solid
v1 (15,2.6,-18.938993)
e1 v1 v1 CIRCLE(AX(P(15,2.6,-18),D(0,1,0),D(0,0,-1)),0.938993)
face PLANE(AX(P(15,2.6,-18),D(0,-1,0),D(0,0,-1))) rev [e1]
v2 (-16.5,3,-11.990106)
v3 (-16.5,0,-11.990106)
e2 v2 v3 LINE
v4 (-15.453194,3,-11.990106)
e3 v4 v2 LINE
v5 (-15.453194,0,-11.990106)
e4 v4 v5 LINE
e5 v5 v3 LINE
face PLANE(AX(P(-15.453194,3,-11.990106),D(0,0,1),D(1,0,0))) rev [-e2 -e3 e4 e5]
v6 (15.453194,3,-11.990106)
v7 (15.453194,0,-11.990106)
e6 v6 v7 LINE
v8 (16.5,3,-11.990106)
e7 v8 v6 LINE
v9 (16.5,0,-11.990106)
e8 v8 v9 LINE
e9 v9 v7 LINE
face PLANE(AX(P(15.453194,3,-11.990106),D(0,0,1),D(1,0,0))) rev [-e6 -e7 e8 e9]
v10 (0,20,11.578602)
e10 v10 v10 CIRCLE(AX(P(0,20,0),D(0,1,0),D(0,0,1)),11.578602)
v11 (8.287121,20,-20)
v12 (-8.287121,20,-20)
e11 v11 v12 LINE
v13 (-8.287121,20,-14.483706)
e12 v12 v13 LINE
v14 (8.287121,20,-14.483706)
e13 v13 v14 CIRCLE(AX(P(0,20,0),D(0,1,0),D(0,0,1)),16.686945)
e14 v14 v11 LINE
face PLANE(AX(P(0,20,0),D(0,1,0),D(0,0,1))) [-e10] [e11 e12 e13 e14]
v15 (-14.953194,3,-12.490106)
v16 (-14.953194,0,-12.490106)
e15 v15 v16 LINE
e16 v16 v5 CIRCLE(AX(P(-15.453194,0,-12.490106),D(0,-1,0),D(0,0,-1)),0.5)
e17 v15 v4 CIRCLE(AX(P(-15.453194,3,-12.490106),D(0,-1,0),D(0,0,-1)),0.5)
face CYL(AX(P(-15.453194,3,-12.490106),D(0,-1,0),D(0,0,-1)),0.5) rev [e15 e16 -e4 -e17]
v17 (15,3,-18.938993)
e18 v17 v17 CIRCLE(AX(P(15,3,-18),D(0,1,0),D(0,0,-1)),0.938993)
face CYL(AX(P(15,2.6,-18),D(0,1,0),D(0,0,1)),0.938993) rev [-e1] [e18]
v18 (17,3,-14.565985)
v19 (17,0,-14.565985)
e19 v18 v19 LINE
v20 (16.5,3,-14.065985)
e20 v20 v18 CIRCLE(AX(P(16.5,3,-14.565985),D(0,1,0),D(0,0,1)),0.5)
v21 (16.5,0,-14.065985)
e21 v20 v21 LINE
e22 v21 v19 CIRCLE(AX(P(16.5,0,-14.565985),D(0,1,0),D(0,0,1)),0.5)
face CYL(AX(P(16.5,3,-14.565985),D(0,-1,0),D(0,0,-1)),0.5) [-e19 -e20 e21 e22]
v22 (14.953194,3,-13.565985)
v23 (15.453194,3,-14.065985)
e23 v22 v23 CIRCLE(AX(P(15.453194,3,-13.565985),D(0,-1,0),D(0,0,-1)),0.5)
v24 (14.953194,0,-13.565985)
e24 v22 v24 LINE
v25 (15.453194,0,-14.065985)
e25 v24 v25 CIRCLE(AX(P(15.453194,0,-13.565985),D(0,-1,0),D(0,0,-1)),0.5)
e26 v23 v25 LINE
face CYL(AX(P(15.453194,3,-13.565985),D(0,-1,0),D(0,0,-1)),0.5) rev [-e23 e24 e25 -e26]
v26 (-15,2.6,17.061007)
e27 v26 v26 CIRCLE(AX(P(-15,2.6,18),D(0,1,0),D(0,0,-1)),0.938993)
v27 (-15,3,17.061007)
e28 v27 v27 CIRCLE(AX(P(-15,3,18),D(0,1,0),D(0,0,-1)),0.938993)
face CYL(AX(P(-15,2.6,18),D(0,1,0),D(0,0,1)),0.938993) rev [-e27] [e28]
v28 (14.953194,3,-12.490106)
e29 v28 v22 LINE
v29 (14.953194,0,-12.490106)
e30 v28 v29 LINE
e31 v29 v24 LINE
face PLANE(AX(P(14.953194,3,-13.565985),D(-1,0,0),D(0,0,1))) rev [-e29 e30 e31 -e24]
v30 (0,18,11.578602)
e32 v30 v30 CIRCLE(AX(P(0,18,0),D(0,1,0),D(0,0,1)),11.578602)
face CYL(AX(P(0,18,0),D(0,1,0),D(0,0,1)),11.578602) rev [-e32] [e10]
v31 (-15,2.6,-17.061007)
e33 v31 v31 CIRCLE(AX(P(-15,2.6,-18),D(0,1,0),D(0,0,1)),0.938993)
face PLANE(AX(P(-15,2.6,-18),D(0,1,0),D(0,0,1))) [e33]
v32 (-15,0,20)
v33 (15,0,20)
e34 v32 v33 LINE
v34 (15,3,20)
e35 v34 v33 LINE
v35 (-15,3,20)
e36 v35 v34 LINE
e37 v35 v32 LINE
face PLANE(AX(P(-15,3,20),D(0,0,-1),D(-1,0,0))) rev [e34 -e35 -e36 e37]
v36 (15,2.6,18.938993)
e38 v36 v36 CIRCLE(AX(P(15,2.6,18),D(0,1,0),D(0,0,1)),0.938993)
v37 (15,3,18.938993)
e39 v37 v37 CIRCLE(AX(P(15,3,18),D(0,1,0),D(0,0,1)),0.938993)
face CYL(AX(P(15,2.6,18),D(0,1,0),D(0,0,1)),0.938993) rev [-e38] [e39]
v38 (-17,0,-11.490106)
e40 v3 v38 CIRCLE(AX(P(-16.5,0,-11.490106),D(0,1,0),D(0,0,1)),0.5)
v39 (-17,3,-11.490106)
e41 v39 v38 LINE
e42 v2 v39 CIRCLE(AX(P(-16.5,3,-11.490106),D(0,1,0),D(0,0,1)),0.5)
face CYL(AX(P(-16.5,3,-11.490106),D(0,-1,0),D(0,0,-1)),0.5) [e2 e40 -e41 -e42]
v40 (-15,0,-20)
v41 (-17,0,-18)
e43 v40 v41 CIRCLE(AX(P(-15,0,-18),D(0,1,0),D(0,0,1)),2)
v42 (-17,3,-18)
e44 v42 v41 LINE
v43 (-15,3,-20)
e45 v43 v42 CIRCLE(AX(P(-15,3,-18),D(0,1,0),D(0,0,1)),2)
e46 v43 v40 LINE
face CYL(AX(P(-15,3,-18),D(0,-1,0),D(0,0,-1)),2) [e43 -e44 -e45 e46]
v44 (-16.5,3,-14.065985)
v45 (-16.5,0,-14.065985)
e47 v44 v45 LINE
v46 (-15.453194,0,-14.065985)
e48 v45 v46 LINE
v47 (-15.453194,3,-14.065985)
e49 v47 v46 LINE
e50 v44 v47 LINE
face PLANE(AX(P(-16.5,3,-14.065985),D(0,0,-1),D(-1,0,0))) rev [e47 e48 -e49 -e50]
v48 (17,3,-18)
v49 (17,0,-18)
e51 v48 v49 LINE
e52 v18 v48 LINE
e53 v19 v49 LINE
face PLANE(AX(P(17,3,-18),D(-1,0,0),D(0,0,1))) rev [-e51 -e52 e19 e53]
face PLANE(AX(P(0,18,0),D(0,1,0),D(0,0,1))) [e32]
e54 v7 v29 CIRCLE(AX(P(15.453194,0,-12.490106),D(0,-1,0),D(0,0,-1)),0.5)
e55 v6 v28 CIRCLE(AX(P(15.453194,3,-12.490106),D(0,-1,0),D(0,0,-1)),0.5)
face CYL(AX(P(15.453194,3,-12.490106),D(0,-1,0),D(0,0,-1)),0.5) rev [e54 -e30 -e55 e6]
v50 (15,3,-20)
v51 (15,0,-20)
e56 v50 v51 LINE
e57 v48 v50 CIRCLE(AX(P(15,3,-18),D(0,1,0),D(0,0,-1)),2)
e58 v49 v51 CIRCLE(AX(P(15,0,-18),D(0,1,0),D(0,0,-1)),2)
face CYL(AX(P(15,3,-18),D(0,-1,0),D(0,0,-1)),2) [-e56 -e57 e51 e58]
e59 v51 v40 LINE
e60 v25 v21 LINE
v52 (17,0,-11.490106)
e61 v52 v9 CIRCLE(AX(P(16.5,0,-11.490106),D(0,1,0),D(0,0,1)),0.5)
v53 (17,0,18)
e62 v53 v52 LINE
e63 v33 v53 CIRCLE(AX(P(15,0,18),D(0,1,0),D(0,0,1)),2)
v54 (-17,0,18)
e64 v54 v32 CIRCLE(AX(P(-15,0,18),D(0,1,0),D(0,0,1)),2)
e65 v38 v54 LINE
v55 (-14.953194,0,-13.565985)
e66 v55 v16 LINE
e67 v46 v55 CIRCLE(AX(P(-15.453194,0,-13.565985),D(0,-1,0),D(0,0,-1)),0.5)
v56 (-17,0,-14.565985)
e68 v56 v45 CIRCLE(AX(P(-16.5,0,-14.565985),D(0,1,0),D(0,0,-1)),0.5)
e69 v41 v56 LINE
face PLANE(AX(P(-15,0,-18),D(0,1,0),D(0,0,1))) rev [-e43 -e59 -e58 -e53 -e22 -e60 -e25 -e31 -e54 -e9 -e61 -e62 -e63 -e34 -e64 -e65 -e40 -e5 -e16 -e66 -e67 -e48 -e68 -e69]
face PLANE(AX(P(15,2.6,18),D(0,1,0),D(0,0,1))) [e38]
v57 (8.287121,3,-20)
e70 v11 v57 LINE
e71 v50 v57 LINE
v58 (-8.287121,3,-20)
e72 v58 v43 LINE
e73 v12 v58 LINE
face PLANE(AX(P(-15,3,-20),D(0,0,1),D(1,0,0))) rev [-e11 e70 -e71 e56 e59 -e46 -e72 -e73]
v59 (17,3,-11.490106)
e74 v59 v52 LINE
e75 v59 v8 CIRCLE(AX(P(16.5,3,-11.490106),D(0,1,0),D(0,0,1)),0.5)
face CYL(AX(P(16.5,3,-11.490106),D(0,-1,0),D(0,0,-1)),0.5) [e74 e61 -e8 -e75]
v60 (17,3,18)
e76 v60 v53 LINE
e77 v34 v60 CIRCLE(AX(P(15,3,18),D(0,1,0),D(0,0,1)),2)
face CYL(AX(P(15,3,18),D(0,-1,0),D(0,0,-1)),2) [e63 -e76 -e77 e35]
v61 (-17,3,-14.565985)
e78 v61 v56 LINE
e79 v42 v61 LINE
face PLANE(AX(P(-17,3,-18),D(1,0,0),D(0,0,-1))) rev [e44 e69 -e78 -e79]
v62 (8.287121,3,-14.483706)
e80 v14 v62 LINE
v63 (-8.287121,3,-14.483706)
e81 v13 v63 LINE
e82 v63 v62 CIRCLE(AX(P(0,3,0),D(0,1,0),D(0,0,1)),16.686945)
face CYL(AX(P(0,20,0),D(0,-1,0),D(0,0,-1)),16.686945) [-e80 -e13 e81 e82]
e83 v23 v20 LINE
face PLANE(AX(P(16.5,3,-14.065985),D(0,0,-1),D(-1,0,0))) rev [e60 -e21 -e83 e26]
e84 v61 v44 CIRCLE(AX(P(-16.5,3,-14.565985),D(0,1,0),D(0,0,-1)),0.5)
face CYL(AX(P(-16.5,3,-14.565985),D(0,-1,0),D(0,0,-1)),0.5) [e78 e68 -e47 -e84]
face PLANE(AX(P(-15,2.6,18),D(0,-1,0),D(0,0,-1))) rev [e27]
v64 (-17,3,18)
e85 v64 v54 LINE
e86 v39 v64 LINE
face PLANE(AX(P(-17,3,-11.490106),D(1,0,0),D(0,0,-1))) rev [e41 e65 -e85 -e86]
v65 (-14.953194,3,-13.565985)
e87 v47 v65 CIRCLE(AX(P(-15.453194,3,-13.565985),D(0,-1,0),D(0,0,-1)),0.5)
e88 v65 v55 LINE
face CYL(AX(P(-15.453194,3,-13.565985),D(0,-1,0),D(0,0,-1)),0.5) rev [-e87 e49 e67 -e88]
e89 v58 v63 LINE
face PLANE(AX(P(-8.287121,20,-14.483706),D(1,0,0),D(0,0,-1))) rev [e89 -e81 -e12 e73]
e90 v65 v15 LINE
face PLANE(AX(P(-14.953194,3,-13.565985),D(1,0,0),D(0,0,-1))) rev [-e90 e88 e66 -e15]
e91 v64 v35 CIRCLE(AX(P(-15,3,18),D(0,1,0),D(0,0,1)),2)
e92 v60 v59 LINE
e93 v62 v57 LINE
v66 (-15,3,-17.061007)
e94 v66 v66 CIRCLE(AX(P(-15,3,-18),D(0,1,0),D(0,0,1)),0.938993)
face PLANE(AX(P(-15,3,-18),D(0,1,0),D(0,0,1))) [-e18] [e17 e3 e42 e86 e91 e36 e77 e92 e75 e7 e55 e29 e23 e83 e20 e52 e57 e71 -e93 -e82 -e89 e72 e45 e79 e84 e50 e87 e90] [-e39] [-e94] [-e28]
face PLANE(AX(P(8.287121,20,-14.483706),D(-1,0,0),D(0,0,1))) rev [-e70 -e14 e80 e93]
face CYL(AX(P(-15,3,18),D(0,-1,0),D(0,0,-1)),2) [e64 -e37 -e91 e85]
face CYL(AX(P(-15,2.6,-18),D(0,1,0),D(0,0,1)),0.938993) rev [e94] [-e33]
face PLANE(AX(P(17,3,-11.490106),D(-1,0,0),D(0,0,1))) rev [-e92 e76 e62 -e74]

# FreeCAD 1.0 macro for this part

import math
import FreeCAD as App
import Part
import Sketcher

doc = App.newDocument("Part")
body = doc.addObject("PartDesign::Body", "Body")

sketch1 = doc.addObject("Sketcher::SketchObject", "Sketch")
body.addObject(sketch1)
sketch1.AttachmentSupport = (doc.XZ_Plane, [""])
sketch1.MapMode = "FlatFace"
sketch1.addGeometry(Part.LineSegment(App.Vector(-16.5, -14.065985, 0), App.Vector(-15.453194, -14.065985, 0)), False)
sketch1.addGeometry(Part.ArcOfCircle(Part.Circle(App.Vector(-15.453194, -13.565985, 0), App.Vector(0, 0, 1), 0.5), math.radians(-90), math.radians(0)), False)
sketch1.addGeometry(Part.LineSegment(App.Vector(-14.953194, -13.565985, 0), App.Vector(-14.953194, -12.490106, 0)), False)
sketch1.addGeometry(Part.ArcOfCircle(Part.Circle(App.Vector(-15.453194, -12.490106, 0), App.Vector(0, 0, 1), 0.5), math.radians(0), math.radians(90)), False)
sketch1.addGeometry(Part.LineSegment(App.Vector(-15.453194, -11.990106, 0), App.Vector(-16.5, -11.990106, 0)), False)
sketch1.addGeometry(Part.ArcOfCircle(Part.Circle(App.Vector(-16.5, -11.490106, 0), App.Vector(0, 0, 1), 0.5), math.radians(180), math.radians(270)), False)
sketch1.addGeometry(Part.LineSegment(App.Vector(-17, -11.490106, 0), App.Vector(-17, 18, 0)), False)
sketch1.addGeometry(Part.ArcOfCircle(Part.Circle(App.Vector(-15, 18, 0), App.Vector(0, 0, 1), 2), math.radians(90), math.radians(180)), False)
sketch1.addGeometry(Part.LineSegment(App.Vector(-15, 20, 0), App.Vector(15, 20, 0)), False)
sketch1.addGeometry(Part.ArcOfCircle(Part.Circle(App.Vector(15, 18, 0), App.Vector(0, 0, 1), 2), math.radians(0), math.radians(90)), False)
sketch1.addGeometry(Part.LineSegment(App.Vector(17, 18, 0), App.Vector(17, -11.490106, 0)), False)
sketch1.addGeometry(Part.ArcOfCircle(Part.Circle(App.Vector(16.5, -11.490106, 0), App.Vector(0, 0, 1), 0.5), math.radians(-90), math.radians(0)), False)
sketch1.addGeometry(Part.LineSegment(App.Vector(16.5, -11.990106, 0), App.Vector(15.453194, -11.990106, 0)), False)
sketch1.addGeometry(Part.ArcOfCircle(Part.Circle(App.Vector(15.453194, -12.490106, 0), App.Vector(0, 0, 1), 0.5), math.radians(90), math.radians(180)), False)
sketch1.addGeometry(Part.LineSegment(App.Vector(14.953194, -12.490106, 0), App.Vector(14.953194, -13.565985, 0)), False)
sketch1.addGeometry(Part.ArcOfCircle(Part.Circle(App.Vector(15.453194, -13.565985, 0), App.Vector(0, 0, 1), 0.5), math.radians(180), math.radians(270)), False)
sketch1.addGeometry(Part.LineSegment(App.Vector(15.453194, -14.065985, 0), App.Vector(16.5, -14.065985, 0)), False)
sketch1.addGeometry(Part.ArcOfCircle(Part.Circle(App.Vector(16.5, -14.565985, 0), App.Vector(0, 0, 1), 0.5), math.radians(0), math.radians(90)), False)
sketch1.addGeometry(Part.LineSegment(App.Vector(17, -14.565985, 0), App.Vector(17, -18, 0)), False)
sketch1.addGeometry(Part.ArcOfCircle(Part.Circle(App.Vector(15, -18, 0), App.Vector(0, 0, 1), 2), math.radians(-90), math.radians(0)), False)
sketch1.addGeometry(Part.LineSegment(App.Vector(15, -20, 0), App.Vector(-15, -20, 0)), False)
sketch1.addGeometry(Part.ArcOfCircle(Part.Circle(App.Vector(-15, -18, 0), App.Vector(0, 0, 1), 2), math.radians(-180), math.radians(-90)), False)
sketch1.addGeometry(Part.LineSegment(App.Vector(-17, -18, 0), App.Vector(-17, -14.565985, 0)), False)
sketch1.addGeometry(Part.ArcOfCircle(Part.Circle(App.Vector(-16.5, -14.565985, 0), App.Vector(0, 0, 1), 0.5), math.radians(90), math.radians(180)), False)
sketch1.addConstraint(Sketcher.Constraint("Tangent", 0, 2, 1, 1))
sketch1.addConstraint(Sketcher.Constraint("Tangent", 1, 2, 2, 1))
sketch1.addConstraint(Sketcher.Constraint("Tangent", 2, 2, 3, 1))
sketch1.addConstraint(Sketcher.Constraint("Tangent", 3, 2, 4, 1))
sketch1.addConstraint(Sketcher.Constraint("Tangent", 4, 2, 5, 2))
sketch1.addConstraint(Sketcher.Constraint("Tangent", 5, 1, 6, 1))
sketch1.addConstraint(Sketcher.Constraint("Tangent", 6, 2, 7, 2))
sketch1.addConstraint(Sketcher.Constraint("Tangent", 7, 1, 8, 1))
sketch1.addConstraint(Sketcher.Constraint("Tangent", 8, 2, 9, 2))
sketch1.addConstraint(Sketcher.Constraint("Tangent", 9, 1, 10, 1))
sketch1.addConstraint(Sketcher.Constraint("Tangent", 10, 2, 11, 2))
sketch1.addConstraint(Sketcher.Constraint("Tangent", 11, 1, 12, 1))
sketch1.addConstraint(Sketcher.Constraint("Tangent", 12, 2, 13, 1))
sketch1.addConstraint(Sketcher.Constraint("Tangent", 13, 2, 14, 1))
sketch1.addConstraint(Sketcher.Constraint("Tangent", 14, 2, 15, 1))
sketch1.addConstraint(Sketcher.Constraint("Tangent", 15, 2, 16, 1))
sketch1.addConstraint(Sketcher.Constraint("Tangent", 16, 2, 17, 2))
sketch1.addConstraint(Sketcher.Constraint("Tangent", 17, 1, 18, 1))
sketch1.addConstraint(Sketcher.Constraint("Tangent", 18, 2, 19, 2))
sketch1.addConstraint(Sketcher.Constraint("Tangent", 19, 1, 20, 1))
sketch1.addConstraint(Sketcher.Constraint("Tangent", 20, 2, 21, 2))
sketch1.addConstraint(Sketcher.Constraint("Tangent", 21, 1, 22, 1))
sketch1.addConstraint(Sketcher.Constraint("Tangent", 22, 2, 23, 2))
sketch1.addConstraint(Sketcher.Constraint("Tangent", 23, 1, 0, 1))
sketch1.addConstraint(Sketcher.Constraint("Horizontal", 0))
sketch1.addConstraint(Sketcher.Constraint("Vertical", 2))
sketch1.addConstraint(Sketcher.Constraint("Horizontal", 4))
sketch1.addConstraint(Sketcher.Constraint("Vertical", 6))
sketch1.addConstraint(Sketcher.Constraint("Horizontal", 8))
sketch1.addConstraint(Sketcher.Constraint("Vertical", 10))
sketch1.addConstraint(Sketcher.Constraint("Horizontal", 12))
sketch1.addConstraint(Sketcher.Constraint("Vertical", 14))
sketch1.addConstraint(Sketcher.Constraint("Horizontal", 16))
sketch1.addConstraint(Sketcher.Constraint("Vertical", 18))
sketch1.addConstraint(Sketcher.Constraint("Horizontal", 20))
sketch1.addConstraint(Sketcher.Constraint("Vertical", 22))
sketch1.addConstraint(Sketcher.Constraint("Equal", 1, 3))
sketch1.addConstraint(Sketcher.Constraint("Equal", 3, 5))
sketch1.addConstraint(Sketcher.Constraint("Equal", 7, 9))
sketch1.addConstraint(Sketcher.Constraint("Equal", 5, 11))
sketch1.addConstraint(Sketcher.Constraint("Equal", 11, 13))
sketch1.addConstraint(Sketcher.Constraint("Equal", 13, 15))
sketch1.addConstraint(Sketcher.Constraint("Equal", 15, 17))
sketch1.addConstraint(Sketcher.Constraint("Equal", 9, 19))
sketch1.addConstraint(Sketcher.Constraint("Equal", 19, 21))
sketch1.addConstraint(Sketcher.Constraint("Equal", 17, 23))
sketch1.addConstraint(Sketcher.Constraint("Symmetric", 7, 3, 19, 3, -1, 1))
sketch1.addConstraint(Sketcher.Constraint("Symmetric", 5, 3, 11, 3, -2))
sketch1.addConstraint(Sketcher.Constraint("Symmetric", 1, 3, 15, 3, -2))
sketch1.addConstraint(Sketcher.Constraint("Vertical", 7, 3, 21, 3))
sketch1.addConstraint(Sketcher.Constraint("Radius", 7, 2.0))
sketch1.addConstraint(Sketcher.Constraint("Radius", 1, 0.5))
sketch1.addConstraint(Sketcher.Constraint("DistanceX", 8, 1, 8, 2, 30.0))
sketch1.addConstraint(Sketcher.Constraint("DistanceY", -1, 1, 7, 3, 18.0))
sketch1.addConstraint(Sketcher.Constraint("DistanceY", 2, 1, 2, 2, 1.075879))
sketch1.addConstraint(Sketcher.Constraint("DistanceX", 0, 1, 0, 2, 1.046806))
sketch1.addConstraint(Sketcher.Constraint("DistanceY", 6, 1, 6, 2, 29.490106))
pad1 = doc.addObject("PartDesign::Pad", "Pad")
body.addObject(pad1)
pad1.Profile = sketch1
pad1.Length = 3
pad1.Reversed = True

sketch2 = doc.addObject("Sketcher::SketchObject", "Sketch001")
body.addObject(sketch2)
sketch2.AttachmentSupport = (doc.XZ_Plane, [""])
sketch2.MapMode = "FlatFace"
sketch2.AttachmentOffset = App.Placement(App.Vector(0, 0, -3), App.Rotation())
sketch2.addGeometry(Part.Circle(App.Vector(-15, -18, 0), App.Vector(0, 0, 1), 0.938993), False)
sketch2.addGeometry(Part.Circle(App.Vector(-15, 18, 0), App.Vector(0, 0, 1), 0.938993), False)
sketch2.addGeometry(Part.Circle(App.Vector(15, 18, 0), App.Vector(0, 0, 1), 0.938993), False)
sketch2.addGeometry(Part.Circle(App.Vector(15, -18, 0), App.Vector(0, 0, 1), 0.938993), False)
sketch2.addConstraint(Sketcher.Constraint("Equal", 0, 1))
sketch2.addConstraint(Sketcher.Constraint("Equal", 1, 2))
sketch2.addConstraint(Sketcher.Constraint("Equal", 2, 3))
sketch2.addConstraint(Sketcher.Constraint("Symmetric", 0, 3, 2, 3, -1, 1))
sketch2.addConstraint(Sketcher.Constraint("Symmetric", 1, 3, 3, 3, -1, 1))
sketch2.addConstraint(Sketcher.Constraint("Symmetric", 1, 3, 2, 3, -2))
sketch2.addConstraint(Sketcher.Constraint("DistanceX", 0, 3, -1, 1, 15.0))
sketch2.addConstraint(Sketcher.Constraint("DistanceY", 0, 3, -1, 1, 18.0))
sketch2.addConstraint(Sketcher.Constraint("Diameter", 0, 1.877986))
pocket1 = doc.addObject("PartDesign::Pocket", "Pocket")
body.addObject(pocket1)
pocket1.Profile = sketch2
pocket1.Length = 0.4
pocket1.Reversed = True

sketch3 = doc.addObject("Sketcher::SketchObject", "Sketch002")
body.addObject(sketch3)
sketch3.AttachmentSupport = (doc.XZ_Plane, [""])
sketch3.MapMode = "FlatFace"
sketch3.AttachmentOffset = App.Placement(App.Vector(0, 0, -3), App.Rotation())
sketch3.addGeometry(Part.LineSegment(App.Vector(8.287121, -14.483706, 0), App.Vector(8.287121, -20, 0)), False)
sketch3.addGeometry(Part.LineSegment(App.Vector(8.287121, -20, 0), App.Vector(-8.287121, -20, 0)), False)
sketch3.addGeometry(Part.LineSegment(App.Vector(-8.287121, -20, 0), App.Vector(-8.287121, -14.483706, 0)), False)
sketch3.addGeometry(Part.ArcOfCircle(Part.Circle(App.Vector(0, 0, 0), App.Vector(0, 0, 1), 16.686945), math.radians(-60.223167), math.radians(240.223167)), False)
sketch3.addConstraint(Sketcher.Constraint("Coincident", 0, 2, 1, 1))
sketch3.addConstraint(Sketcher.Constraint("Coincident", 1, 2, 2, 1))
sketch3.addConstraint(Sketcher.Constraint("Coincident", 2, 2, 3, 2))
sketch3.addConstraint(Sketcher.Constraint("Coincident", 3, 1, 0, 1))
sketch3.addConstraint(Sketcher.Constraint("Vertical", 0))
sketch3.addConstraint(Sketcher.Constraint("Horizontal", 1))
sketch3.addConstraint(Sketcher.Constraint("Vertical", 2))
sketch3.addConstraint(Sketcher.Constraint("Coincident", 3, 3, -1, 1))
sketch3.addConstraint(Sketcher.Constraint("Horizontal", 2, 2, 3, 1))
sketch3.addConstraint(Sketcher.Constraint("DistanceY", 0, 2, -1, 1, 20.0))
sketch3.addConstraint(Sketcher.Constraint("Radius", 3, 16.686945))
sketch3.addConstraint(Sketcher.Constraint("DistanceX", 1, 2, 1, 1, 16.574243))
pad2 = doc.addObject("PartDesign::Pad", "Pad001")
body.addObject(pad2)
pad2.Profile = sketch3
pad2.Length = 17
pad2.Reversed = True

sketch4 = doc.addObject("Sketcher::SketchObject", "Sketch003")
body.addObject(sketch4)
sketch4.AttachmentSupport = (doc.XZ_Plane, [""])
sketch4.MapMode = "FlatFace"
sketch4.AttachmentOffset = App.Placement(App.Vector(0, 0, -20), App.Rotation())
sketch4.addGeometry(Part.Circle(App.Vector(0, 0, 0), App.Vector(0, 0, 1), 11.578602), False)
sketch4.addConstraint(Sketcher.Constraint("Coincident", 0, 3, -1, 1))
sketch4.addConstraint(Sketcher.Constraint("Diameter", 0, 23.157204))
pocket2 = doc.addObject("PartDesign::Pocket", "Pocket001")
body.addObject(pocket2)
pocket2.Profile = sketch4
pocket2.Length = 2
pocket2.Reversed = True

doc.recompute()
